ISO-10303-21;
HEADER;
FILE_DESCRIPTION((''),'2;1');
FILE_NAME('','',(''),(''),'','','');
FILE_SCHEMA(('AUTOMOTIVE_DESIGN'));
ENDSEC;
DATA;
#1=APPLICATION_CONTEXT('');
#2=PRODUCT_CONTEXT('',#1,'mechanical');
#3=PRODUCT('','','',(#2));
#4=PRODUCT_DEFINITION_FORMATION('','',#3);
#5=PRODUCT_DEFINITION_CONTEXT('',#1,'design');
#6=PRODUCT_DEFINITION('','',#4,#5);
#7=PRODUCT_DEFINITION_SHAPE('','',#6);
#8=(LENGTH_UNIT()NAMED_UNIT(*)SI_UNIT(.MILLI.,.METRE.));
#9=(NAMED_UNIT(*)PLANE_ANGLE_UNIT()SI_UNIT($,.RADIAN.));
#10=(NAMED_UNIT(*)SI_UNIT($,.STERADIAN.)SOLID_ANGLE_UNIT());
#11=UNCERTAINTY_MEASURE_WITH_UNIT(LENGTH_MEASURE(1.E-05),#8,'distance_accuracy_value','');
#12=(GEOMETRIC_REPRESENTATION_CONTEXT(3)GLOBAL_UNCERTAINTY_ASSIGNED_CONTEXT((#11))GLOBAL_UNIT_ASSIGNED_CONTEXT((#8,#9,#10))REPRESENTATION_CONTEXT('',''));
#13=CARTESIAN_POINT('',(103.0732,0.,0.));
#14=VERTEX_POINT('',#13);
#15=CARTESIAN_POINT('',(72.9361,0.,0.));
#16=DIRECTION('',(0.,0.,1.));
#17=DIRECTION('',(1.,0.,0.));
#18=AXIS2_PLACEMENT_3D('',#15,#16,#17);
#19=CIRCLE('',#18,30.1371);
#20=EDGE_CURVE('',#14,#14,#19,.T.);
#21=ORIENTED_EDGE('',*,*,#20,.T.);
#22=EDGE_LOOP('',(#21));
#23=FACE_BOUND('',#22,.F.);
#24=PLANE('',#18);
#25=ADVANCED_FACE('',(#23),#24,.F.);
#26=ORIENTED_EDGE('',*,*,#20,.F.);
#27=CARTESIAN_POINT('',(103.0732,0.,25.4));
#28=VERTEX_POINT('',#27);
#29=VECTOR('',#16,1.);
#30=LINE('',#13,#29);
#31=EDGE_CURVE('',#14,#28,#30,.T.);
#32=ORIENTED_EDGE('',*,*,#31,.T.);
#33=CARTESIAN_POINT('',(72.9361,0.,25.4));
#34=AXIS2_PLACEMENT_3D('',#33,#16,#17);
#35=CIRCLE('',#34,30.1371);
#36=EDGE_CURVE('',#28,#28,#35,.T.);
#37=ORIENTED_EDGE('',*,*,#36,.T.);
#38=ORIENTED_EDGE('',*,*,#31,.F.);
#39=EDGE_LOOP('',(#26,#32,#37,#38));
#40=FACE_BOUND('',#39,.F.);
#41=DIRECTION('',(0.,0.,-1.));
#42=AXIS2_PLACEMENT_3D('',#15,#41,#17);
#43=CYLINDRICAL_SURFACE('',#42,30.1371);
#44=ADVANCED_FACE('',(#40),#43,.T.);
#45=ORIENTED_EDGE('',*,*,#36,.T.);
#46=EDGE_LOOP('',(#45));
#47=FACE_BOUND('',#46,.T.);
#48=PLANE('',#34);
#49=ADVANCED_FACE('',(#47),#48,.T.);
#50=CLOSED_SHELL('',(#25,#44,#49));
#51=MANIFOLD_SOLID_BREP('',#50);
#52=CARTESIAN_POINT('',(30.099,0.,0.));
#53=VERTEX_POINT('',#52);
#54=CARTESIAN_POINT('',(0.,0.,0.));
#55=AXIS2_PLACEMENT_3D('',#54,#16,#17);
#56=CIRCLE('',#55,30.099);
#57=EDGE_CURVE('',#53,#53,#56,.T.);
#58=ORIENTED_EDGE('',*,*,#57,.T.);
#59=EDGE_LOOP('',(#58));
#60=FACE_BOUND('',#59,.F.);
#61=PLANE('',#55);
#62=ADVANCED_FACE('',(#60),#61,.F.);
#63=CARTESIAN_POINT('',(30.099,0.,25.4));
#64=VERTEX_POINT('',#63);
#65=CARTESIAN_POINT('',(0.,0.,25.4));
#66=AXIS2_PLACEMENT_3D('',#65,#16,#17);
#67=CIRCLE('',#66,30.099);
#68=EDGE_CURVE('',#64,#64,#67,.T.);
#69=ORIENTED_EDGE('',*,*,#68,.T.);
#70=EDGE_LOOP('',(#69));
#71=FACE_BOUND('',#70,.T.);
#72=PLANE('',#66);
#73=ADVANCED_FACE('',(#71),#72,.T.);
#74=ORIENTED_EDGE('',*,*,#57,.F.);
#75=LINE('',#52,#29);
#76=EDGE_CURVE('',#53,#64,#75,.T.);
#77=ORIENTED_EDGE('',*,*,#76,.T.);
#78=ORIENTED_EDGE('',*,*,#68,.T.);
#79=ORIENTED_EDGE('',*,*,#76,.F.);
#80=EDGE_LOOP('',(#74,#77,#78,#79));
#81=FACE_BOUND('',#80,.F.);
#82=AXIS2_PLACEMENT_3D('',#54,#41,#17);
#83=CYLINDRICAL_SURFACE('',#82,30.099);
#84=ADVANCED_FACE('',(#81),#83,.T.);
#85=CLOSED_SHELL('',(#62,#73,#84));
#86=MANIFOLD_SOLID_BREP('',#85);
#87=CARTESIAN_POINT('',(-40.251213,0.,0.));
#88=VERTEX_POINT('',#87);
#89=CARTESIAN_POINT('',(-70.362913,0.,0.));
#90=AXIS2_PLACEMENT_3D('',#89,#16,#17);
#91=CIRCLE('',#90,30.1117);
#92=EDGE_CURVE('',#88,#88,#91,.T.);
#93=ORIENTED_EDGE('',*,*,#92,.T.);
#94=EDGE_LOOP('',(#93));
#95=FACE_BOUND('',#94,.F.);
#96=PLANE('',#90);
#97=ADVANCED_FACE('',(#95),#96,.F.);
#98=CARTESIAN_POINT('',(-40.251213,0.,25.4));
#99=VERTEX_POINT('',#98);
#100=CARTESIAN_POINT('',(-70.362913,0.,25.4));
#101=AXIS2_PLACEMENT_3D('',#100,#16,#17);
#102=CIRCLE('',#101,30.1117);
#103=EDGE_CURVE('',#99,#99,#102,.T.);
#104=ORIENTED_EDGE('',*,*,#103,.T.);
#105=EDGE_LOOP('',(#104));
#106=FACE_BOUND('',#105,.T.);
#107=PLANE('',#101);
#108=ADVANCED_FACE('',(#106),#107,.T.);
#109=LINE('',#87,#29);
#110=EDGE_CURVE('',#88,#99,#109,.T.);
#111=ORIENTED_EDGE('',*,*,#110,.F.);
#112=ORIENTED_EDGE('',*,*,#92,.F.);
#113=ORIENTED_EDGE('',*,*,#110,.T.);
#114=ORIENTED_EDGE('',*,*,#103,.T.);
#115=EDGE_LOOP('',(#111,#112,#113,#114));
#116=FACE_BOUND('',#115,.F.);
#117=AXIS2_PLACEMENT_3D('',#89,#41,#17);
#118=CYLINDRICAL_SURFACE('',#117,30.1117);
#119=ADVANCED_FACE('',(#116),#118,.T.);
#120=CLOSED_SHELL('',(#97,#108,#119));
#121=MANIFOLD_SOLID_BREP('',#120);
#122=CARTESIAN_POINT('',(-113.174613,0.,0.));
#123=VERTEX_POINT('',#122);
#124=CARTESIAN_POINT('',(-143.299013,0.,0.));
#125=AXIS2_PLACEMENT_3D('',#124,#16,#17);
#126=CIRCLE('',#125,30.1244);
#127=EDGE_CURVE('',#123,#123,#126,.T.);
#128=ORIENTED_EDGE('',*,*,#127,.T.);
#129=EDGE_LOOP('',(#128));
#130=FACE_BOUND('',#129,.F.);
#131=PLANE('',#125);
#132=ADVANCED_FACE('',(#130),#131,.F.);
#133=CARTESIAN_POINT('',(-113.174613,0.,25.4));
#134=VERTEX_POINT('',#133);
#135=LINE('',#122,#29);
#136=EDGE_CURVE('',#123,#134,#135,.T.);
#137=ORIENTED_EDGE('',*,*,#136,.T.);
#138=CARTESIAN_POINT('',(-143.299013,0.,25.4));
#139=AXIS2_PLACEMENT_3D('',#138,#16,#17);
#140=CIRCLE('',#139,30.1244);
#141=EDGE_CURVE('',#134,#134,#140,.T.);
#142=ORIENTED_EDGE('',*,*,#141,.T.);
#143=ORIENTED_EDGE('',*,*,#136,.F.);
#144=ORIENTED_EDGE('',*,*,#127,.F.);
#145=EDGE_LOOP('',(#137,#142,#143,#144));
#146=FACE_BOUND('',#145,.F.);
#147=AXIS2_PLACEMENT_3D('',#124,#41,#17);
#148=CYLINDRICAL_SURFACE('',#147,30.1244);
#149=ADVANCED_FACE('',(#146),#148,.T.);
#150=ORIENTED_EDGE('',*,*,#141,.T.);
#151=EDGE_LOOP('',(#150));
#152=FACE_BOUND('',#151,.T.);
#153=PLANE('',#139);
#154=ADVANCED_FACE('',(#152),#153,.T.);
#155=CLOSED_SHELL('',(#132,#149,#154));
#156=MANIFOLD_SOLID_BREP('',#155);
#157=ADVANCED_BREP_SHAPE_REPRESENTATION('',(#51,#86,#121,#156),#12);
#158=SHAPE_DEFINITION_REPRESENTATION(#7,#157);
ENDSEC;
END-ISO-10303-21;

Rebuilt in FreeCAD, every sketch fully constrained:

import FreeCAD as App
import Part
import Sketcher

V = App.Vector
Q = App.Units.Quantity

doc = App.newDocument("Part")
body = doc.addObject("PartDesign::Body", "Body")
body.AllowCompound = True

sketch1 = body.newObject("Sketcher::SketchObject", "Sketch")
sketch1.AttachmentSupport = (doc.getObject("XY_Plane"), [""])
sketch1.MapMode = "FlatFace"
sketch1.addGeometry([
    Part.Circle(V(0, 0, 0), V(0, 0, 1), 30),
    Part.Circle(V(-70, 0, 0), V(0, 0, 1), 30),
    Part.Circle(V(-143, 0, 0), V(0, 0, 1), 30),
    Part.Circle(V(73, 0, 0), V(0, 0, 1), 30),
], False)
sketch1.addConstraint([
    Sketcher.Constraint("Coincident", 0, 3, -1, 1),
    Sketcher.Constraint("PointOnObject", 1, 3, -1),
    Sketcher.Constraint("PointOnObject", 2, 3, -1),
    Sketcher.Constraint("PointOnObject", 3, 3, -1),
    Sketcher.Constraint("Diameter", 0, Q("2.37 in")),
    Sketcher.Constraint("Diameter", 1, Q("2.371 in")),
    Sketcher.Constraint("Diameter", 2, Q("2.372 in")),
    Sketcher.Constraint("Diameter", 3, Q("2.373 in")),
    Sketcher.Constraint("DistanceX", -1, 1, 3, 3, Q("2.8715 in")),
    Sketcher.Constraint("DistanceX", 2, 3, 1, 3, Q("2.8715 in")),
    Sketcher.Constraint("DistanceX", 1, 3, -1, 1, Q("70.362913 mm")),
])
pad1 = body.newObject("PartDesign::Pad", "Pad")
pad1.Profile = sketch1
pad1.Length = Q("1 in")

doc.recompute()
